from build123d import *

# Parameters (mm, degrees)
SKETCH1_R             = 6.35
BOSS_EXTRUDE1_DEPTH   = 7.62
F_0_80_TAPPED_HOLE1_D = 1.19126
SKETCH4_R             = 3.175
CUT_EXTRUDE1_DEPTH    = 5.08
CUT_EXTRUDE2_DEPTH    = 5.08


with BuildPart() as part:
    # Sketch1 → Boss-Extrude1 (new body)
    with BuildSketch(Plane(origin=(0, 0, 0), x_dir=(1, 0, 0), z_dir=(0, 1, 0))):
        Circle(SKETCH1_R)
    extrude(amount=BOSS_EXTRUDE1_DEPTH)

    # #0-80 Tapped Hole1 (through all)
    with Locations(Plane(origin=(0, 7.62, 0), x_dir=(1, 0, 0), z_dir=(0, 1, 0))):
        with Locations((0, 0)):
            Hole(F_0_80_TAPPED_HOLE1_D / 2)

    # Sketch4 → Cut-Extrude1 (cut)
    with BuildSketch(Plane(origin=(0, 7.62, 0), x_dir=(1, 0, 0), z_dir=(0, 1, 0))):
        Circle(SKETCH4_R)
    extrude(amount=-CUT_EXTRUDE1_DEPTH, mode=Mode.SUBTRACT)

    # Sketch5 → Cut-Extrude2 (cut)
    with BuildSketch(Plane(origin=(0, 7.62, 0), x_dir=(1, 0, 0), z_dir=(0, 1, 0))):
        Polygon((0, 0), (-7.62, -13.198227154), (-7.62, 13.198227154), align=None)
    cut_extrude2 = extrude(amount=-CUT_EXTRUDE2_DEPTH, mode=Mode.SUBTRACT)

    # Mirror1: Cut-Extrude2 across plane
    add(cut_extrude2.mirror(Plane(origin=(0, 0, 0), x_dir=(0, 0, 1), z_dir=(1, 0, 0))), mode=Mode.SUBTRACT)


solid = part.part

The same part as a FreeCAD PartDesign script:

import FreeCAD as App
import Part
import Sketcher
from FreeCAD import Vector
Q = App.Units.Quantity


def add_polygon(sketch, points):
    """Adds a closed chain of lines whose ends are joined by coincident constraints."""
    first, n = sketch.GeometryCount, len(points)
    for a, b in zip(points, points[1:] + points[:1]):
        sketch.addGeometry(Part.LineSegment(App.Vector(*a, 0), App.Vector(*b, 0)), False)
    for i in range(n):
        sketch.addConstraint(Sketcher.Constraint("Coincident", first + i, 2, first + (i + 1) % n, 1))

doc = App.newDocument("Part")
body = doc.addObject("PartDesign::Body", "Body")

# Sketch on XZ plane
sketch1 = body.newObject("Sketcher::SketchObject", "Sketch")
sketch1.AttachmentSupport = (doc.getObject("XZ_Plane"), [""])
sketch1.MapMode = "FlatFace"
sketch1.addGeometry(Part.Circle(Vector(0, 0, 0), Vector(0, 0, 1), 6), False)
sketch1.addConstraint(Sketcher.Constraint("Coincident", 0, 3, -1, 1))
sketch1.addConstraint(Sketcher.Constraint("Diameter", 0, Q("0.5 in")))
pad1 = body.newObject("PartDesign::Pad", "Pad")
pad1.Profile = sketch1
pad1.Length = Q("0.3 in")
pad1.Reversed = True

# Sketch on XZ plane
sketch2 = body.newObject("Sketcher::SketchObject", "Sketch001")
sketch2.AttachmentSupport = (doc.getObject("XZ_Plane"), [""])
sketch2.MapMode = "FlatFace"
sketch2.AttachmentOffset = App.Placement(Vector(0, 0, -0.3 * 25.4), App.Rotation())
sketch2.addGeometry(Part.Circle(Vector(0, 0, 0), Vector(0, 0, 1), 0.6), False)
sketch2.addConstraint(Sketcher.Constraint("Coincident", 0, 3, -1, 1))
sketch2.addConstraint(Sketcher.Constraint("Diameter", 0, Q("0.0469 in")))
doc.recompute()
hole = body.newObject("PartDesign::Hole", "Hole")
hole.Profile = sketch2
hole.ThreadType = "None"
hole.Diameter = Q("0.0469 in")
hole.DepthType = "ThroughAll"
hole.Reversed = True

# Sketch on XZ plane
sketch3 = body.newObject("Sketcher::SketchObject", "Sketch002")
sketch3.AttachmentSupport = (doc.getObject("XZ_Plane"), [""])
sketch3.MapMode = "FlatFace"
sketch3.AttachmentOffset = App.Placement(Vector(0, 0, -0.3 * 25.4), App.Rotation())
sketch3.addGeometry(Part.Circle(Vector(0, 0, 0), Vector(0, 0, 1), 3.2), False)
sketch3.addConstraint(Sketcher.Constraint("Coincident", 0, 3, -1, 1))
sketch3.addConstraint(Sketcher.Constraint("Diameter", 0, Q("0.25 in")))
pocket1 = body.newObject("PartDesign::Pocket", "Pocket")
pocket1.Profile = sketch3
pocket1.Length = Q("0.2 in")
pocket1.Reversed = True

# Sketch on XZ plane
sketch4 = body.newObject("Sketcher::SketchObject", "Sketch003")
sketch4.AttachmentSupport = (doc.getObject("XZ_Plane"), [""])
sketch4.MapMode = "FlatFace"
sketch4.AttachmentOffset = App.Placement(Vector(0, 0, -0.3 * 25.4), App.Rotation())
add_polygon(sketch4, [(-8, 13), (0, 0), (-8, -13)])  # lines 0-2
sketch4.addConstraint(Sketcher.Constraint("Vertical", 2))
sketch4.addConstraint(Sketcher.Constraint("Coincident", 0, 2, -1, 1))
sketch4.addConstraint(Sketcher.Constraint("Equal", 0, 1))
sketch4.addConstraint(Sketcher.Constraint("Angle", 0, Q("-60 deg")))
sketch4.addConstraint(Sketcher.Constraint("Distance", 0, Q("0.6 in")))
pocket2 = body.newObject("PartDesign::Pocket", "Pocket001")
pocket2.Profile = sketch4
pocket2.Length = Q("0.2 in")
pocket2.Reversed = True
doc.recompute()

mirrored = body.newObject("PartDesign::Mirrored", "Mirrored")
mirrored.Originals = [pocket2]
mirrored.MirrorPlane = (doc.getObject("YZ_Plane"), [""])
body.Tip = mirrored

doc.recompute()
